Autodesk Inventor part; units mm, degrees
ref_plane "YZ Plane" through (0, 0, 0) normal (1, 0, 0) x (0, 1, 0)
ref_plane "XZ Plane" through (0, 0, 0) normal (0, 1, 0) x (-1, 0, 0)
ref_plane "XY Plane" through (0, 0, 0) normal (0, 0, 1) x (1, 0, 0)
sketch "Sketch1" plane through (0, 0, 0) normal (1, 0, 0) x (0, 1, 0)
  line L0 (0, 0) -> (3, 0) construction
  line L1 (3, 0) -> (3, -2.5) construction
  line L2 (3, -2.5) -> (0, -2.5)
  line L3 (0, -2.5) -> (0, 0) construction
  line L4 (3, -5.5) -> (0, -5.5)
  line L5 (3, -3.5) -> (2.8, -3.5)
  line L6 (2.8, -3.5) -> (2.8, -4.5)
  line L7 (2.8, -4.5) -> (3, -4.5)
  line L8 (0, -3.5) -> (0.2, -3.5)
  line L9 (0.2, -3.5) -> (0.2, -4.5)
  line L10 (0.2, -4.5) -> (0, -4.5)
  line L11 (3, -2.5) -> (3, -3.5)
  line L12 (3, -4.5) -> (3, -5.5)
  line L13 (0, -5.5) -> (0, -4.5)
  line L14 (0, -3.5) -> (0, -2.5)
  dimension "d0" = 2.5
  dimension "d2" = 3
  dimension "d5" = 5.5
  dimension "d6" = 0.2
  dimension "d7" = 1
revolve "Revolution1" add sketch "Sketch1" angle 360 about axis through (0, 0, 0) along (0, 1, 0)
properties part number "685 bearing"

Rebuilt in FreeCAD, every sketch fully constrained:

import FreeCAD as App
import Part
import Sketcher


def add_polygon(sketch, points):
    """Adds a closed chain of lines whose ends are joined by coincident constraints."""
    first, n = sketch.GeometryCount, len(points)
    for a, b in zip(points, points[1:] + points[:1]):
        sketch.addGeometry(Part.LineSegment(App.Vector(*a, 0), App.Vector(*b, 0)), False)
    for i in range(n):
        sketch.addConstraint(Sketcher.Constraint("Coincident", first + i, 2, first + (i + 1) % n, 1))

doc = App.newDocument("Part")
body = doc.addObject("PartDesign::Body", "Body")

sketch1 = body.newObject("Sketcher::SketchObject", "Sketch")
sketch1.AttachmentSupport = (doc.getObject("YZ_Plane"), [""])
sketch1.MapMode = "FlatFace"
add_polygon(sketch1, [(3, -3.5), (3, -2.5), (0, -2.5), (0, -3.5), (0.2, -3.5), (0.2, -4.5), (0, -4.5), (0, -5.5), (3, -5.5), (3, -4.5), (2.8, -4.5), (2.8, -3.5)])
sketch1.addConstraint(Sketcher.Constraint("Vertical", 0))
sketch1.addConstraint(Sketcher.Constraint("Horizontal", 1))
sketch1.addConstraint(Sketcher.Constraint("Vertical", 2))
sketch1.addConstraint(Sketcher.Constraint("Horizontal", 3))
sketch1.addConstraint(Sketcher.Constraint("Vertical", 4))
sketch1.addConstraint(Sketcher.Constraint("Horizontal", 5))
sketch1.addConstraint(Sketcher.Constraint("Vertical", 6))
sketch1.addConstraint(Sketcher.Constraint("Horizontal", 7))
sketch1.addConstraint(Sketcher.Constraint("Vertical", 8))
sketch1.addConstraint(Sketcher.Constraint("Horizontal", 9))
sketch1.addConstraint(Sketcher.Constraint("Vertical", 10))
sketch1.addConstraint(Sketcher.Constraint("Horizontal", 11))
sketch1.addConstraint(Sketcher.Constraint("PointOnObject", 1, 2, -2))
sketch1.addConstraint(Sketcher.Constraint("PointOnObject", 5, 2, -2))
sketch1.addConstraint(Sketcher.Constraint("Horizontal", 5, 2, 8, 2))
sketch1.addConstraint(Sketcher.Constraint("Horizontal", 3, 2, 10, 2))
sketch1.addConstraint(Sketcher.Constraint("Vertical", 0, 2, 7, 2))
sketch1.addConstraint(Sketcher.Constraint("Equal", 5, 9))
sketch1.addConstraint(Sketcher.Constraint("Equal", 2, 4))
sketch1.addConstraint(Sketcher.Constraint("Equal", 4, 6))
sketch1.addConstraint(Sketcher.Constraint("DistanceX", 1, 2, 1, 1, 3.0))
sketch1.addConstraint(Sketcher.Constraint("DistanceY", 0, 1, 0, 2, 1.0))
sketch1.addConstraint(Sketcher.Constraint("DistanceX", 3, 1, 3, 2, 0.2))
sketch1.addConstraint(Sketcher.Constraint("DistanceY", 0, 2, -1, 1, 2.5))
revolution = body.newObject("PartDesign::Revolution", "Revolution")
revolution.Profile = sketch1
revolution.ReferenceAxis = (sketch1, ["H_Axis"])
revolution.Angle = 360

doc.recompute()
